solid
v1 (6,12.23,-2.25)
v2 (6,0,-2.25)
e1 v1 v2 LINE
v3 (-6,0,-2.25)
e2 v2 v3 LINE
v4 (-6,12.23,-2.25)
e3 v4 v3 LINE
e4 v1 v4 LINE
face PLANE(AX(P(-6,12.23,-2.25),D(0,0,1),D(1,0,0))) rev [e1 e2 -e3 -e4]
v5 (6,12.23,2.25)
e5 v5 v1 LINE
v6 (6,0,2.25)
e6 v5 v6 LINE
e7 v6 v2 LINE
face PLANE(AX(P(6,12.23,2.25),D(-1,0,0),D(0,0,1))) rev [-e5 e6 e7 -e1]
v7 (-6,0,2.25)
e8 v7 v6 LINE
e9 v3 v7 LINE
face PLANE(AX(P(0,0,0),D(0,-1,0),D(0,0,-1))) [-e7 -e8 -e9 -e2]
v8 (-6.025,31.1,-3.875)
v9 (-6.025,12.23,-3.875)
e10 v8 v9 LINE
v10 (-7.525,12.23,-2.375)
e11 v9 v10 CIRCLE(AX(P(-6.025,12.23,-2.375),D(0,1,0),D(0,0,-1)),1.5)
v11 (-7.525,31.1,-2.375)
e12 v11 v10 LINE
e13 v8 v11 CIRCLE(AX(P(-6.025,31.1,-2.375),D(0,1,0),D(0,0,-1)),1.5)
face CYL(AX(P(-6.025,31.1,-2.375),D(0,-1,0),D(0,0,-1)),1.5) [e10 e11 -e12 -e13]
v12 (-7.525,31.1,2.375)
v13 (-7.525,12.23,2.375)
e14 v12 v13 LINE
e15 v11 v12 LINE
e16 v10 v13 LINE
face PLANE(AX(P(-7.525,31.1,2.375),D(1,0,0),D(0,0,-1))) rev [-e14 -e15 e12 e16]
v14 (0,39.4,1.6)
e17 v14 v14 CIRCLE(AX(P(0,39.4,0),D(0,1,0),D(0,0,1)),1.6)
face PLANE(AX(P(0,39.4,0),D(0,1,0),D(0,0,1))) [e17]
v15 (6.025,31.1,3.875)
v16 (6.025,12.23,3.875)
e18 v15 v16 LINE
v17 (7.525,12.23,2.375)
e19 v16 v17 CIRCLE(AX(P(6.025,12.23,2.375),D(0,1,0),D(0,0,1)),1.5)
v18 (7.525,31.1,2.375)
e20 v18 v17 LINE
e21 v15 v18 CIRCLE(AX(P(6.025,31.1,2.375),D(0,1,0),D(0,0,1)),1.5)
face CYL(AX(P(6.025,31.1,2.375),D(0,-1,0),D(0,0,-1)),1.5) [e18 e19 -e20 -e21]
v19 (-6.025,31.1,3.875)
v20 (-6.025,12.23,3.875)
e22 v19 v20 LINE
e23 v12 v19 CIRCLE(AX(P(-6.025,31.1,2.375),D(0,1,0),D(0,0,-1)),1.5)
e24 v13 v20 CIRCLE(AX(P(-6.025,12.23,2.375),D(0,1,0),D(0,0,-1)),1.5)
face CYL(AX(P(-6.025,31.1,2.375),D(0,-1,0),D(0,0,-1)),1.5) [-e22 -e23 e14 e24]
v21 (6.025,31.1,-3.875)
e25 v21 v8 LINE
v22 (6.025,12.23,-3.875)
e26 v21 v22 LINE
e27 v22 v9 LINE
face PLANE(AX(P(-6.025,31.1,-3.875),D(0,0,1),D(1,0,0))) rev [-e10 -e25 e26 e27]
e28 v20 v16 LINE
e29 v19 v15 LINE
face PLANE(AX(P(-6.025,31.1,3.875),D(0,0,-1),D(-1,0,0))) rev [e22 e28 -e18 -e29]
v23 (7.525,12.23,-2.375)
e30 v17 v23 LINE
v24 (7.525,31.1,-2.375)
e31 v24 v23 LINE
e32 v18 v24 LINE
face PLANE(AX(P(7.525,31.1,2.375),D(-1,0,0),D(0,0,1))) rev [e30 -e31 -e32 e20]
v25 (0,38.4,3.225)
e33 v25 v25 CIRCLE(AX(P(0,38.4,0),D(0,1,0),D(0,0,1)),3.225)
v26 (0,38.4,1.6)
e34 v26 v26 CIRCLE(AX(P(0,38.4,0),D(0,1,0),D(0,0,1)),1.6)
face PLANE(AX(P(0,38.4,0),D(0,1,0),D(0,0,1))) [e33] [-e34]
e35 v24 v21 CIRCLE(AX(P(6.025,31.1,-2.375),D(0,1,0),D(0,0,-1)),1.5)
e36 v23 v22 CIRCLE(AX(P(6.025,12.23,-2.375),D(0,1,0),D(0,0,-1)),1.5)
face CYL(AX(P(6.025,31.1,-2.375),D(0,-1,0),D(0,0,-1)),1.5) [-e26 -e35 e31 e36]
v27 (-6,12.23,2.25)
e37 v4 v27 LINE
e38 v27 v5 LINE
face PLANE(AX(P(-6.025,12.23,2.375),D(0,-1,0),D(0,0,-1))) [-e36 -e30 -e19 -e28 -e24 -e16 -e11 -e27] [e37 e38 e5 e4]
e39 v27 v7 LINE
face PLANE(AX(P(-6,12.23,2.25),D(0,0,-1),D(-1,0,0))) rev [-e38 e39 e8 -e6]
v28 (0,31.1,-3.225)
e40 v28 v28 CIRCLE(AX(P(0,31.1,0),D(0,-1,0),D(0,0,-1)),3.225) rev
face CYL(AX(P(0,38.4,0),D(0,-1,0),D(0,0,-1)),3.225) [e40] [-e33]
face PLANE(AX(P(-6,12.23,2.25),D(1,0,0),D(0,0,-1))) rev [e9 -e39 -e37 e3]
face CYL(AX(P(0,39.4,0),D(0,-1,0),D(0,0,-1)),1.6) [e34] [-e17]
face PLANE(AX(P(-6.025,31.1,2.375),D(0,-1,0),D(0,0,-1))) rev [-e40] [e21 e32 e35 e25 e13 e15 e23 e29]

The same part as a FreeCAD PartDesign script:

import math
import FreeCAD as App
import Part
import Sketcher
Q = App.Units.Quantity

doc = App.newDocument("Part")
params = doc.addObject("Spreadsheet::Sheet", "Params")
for row, (alias, value) in enumerate([
    ("sketch1_width", "12 mm"),
    ("sketch1_height", "4.5 mm"),
    ("pad1_length", "12.23 mm"),
    ("sketch2_radius", "1.5 mm"),
    ("sketch2_width", "12.05 mm"),
    ("sketch2_height", "4.75 mm"),
    ("pad2_length", "18.87 mm"),
    ("sketch3_diameter", "6.45 mm"),
    ("pad3_length", "7.3 mm"),
    ("sketch4_diameter", "3.2 mm"),
    ("pad4_length", "1 mm"),
], start=1):
    params.set(f"A{row}", alias)
    params.set(f"B{row}", "=" + value)
    params.setAlias(f"B{row}", alias)

body = doc.addObject("PartDesign::Body", "Body")

sketch1 = doc.addObject("Sketcher::SketchObject", "Sketch")
body.addObject(sketch1)
sketch1.AttachmentSupport = (doc.XZ_Plane, [""])
sketch1.MapMode = "FlatFace"
sketch1.addGeometry([
    Part.LineSegment(App.Vector(-6, -2.25, 0), App.Vector(-6, 2.25, 0)),
    Part.LineSegment(App.Vector(-6, 2.25, 0), App.Vector(6, 2.25, 0)),
    Part.LineSegment(App.Vector(6, 2.25, 0), App.Vector(6, -2.25, 0)),
    Part.LineSegment(App.Vector(6, -2.25, 0), App.Vector(-6, -2.25, 0)),
], False)
sketch1.addConstraint([
    Sketcher.Constraint("Coincident", 0, 2, 1, 1),
    Sketcher.Constraint("Coincident", 1, 2, 2, 1),
    Sketcher.Constraint("Coincident", 2, 2, 3, 1),
    Sketcher.Constraint("Coincident", 3, 2, 0, 1),
    Sketcher.Constraint("Vertical", 0),
    Sketcher.Constraint("Horizontal", 1),
    Sketcher.Constraint("Vertical", 2),
    Sketcher.Constraint("Horizontal", 3),
    Sketcher.Constraint("Symmetric", 0, 2, 2, 2, -1, 1),
    Sketcher.Constraint("DistanceX", 1, 1, 1, 2, Q("12 mm")),
    Sketcher.Constraint("DistanceY", 0, 1, 0, 2, Q("4.5 mm")),
])
sketch1.setExpression("Constraints[9]", "Params.sketch1_width")
sketch1.setExpression("Constraints[10]", "Params.sketch1_height")
pad1 = doc.addObject("PartDesign::Pad", "Pad")
body.addObject(pad1)
pad1.Profile = sketch1
pad1.setExpression("Length", "Params.pad1_length")
pad1.Reversed = True

sketch2 = doc.addObject("Sketcher::SketchObject", "Sketch001")
body.addObject(sketch2)
sketch2.AttachmentSupport = (doc.XZ_Plane, [""])
sketch2.MapMode = "FlatFace"
sketch2.AttachmentOffset = App.Placement(App.Vector(0, 0, -12.23), App.Rotation())
sketch2.addGeometry([
    Part.LineSegment(App.Vector(-6.025, 3.875, 0), App.Vector(6.025, 3.875, 0)),
    Part.ArcOfCircle(Part.Circle(App.Vector(6.025, 2.375, 0), App.Vector(0, 0, 1), 1.5), math.radians(0), math.radians(90)),
    Part.LineSegment(App.Vector(7.525, 2.375, 0), App.Vector(7.525, -2.375, 0)),
    Part.ArcOfCircle(Part.Circle(App.Vector(6.025, -2.375, 0), App.Vector(0, 0, 1), 1.5), math.radians(-90), math.radians(0)),
    Part.LineSegment(App.Vector(6.025, -3.875, 0), App.Vector(-6.025, -3.875, 0)),
    Part.ArcOfCircle(Part.Circle(App.Vector(-6.025, -2.375, 0), App.Vector(0, 0, 1), 1.5), math.radians(180), math.radians(270)),
    Part.LineSegment(App.Vector(-7.525, -2.375, 0), App.Vector(-7.525, 2.375, 0)),
    Part.ArcOfCircle(Part.Circle(App.Vector(-6.025, 2.375, 0), App.Vector(0, 0, 1), 1.5), math.radians(90), math.radians(180)),
], False)
sketch2.addConstraint([
    Sketcher.Constraint("Tangent", 0, 2, 1, 2),
    Sketcher.Constraint("Tangent", 1, 1, 2, 1),
    Sketcher.Constraint("Tangent", 2, 2, 3, 2),
    Sketcher.Constraint("Tangent", 3, 1, 4, 1),
    Sketcher.Constraint("Tangent", 4, 2, 5, 2),
    Sketcher.Constraint("Tangent", 5, 1, 6, 1),
    Sketcher.Constraint("Tangent", 6, 2, 7, 2),
    Sketcher.Constraint("Tangent", 7, 1, 0, 1),
    Sketcher.Constraint("Horizontal", 0),
    Sketcher.Constraint("Vertical", 2),
    Sketcher.Constraint("Horizontal", 4),
    Sketcher.Constraint("Vertical", 6),
    Sketcher.Constraint("Equal", 1, 3),
    Sketcher.Constraint("Equal", 3, 5),
    Sketcher.Constraint("Equal", 5, 7),
    Sketcher.Constraint("Symmetric", 1, 3, 5, 3, -1, 1),
    Sketcher.Constraint("Radius", 1, Q("1.5 mm")),
    Sketcher.Constraint("DistanceX", 0, 1, 0, 2, Q("12.05 mm")),
    Sketcher.Constraint("DistanceY", 2, 2, 2, 1, Q("4.75 mm")),
])
sketch2.setExpression("Constraints[16]", "Params.sketch2_radius")
sketch2.setExpression("Constraints[17]", "Params.sketch2_width")
sketch2.setExpression("Constraints[18]", "Params.sketch2_height")
pad2 = doc.addObject("PartDesign::Pad", "Pad001")
body.addObject(pad2)
pad2.Profile = sketch2
pad2.setExpression("Length", "Params.pad2_length")
pad2.Reversed = True

sketch3 = doc.addObject("Sketcher::SketchObject", "Sketch002")
body.addObject(sketch3)
sketch3.AttachmentSupport = (doc.XZ_Plane, [""])
sketch3.MapMode = "FlatFace"
sketch3.AttachmentOffset = App.Placement(App.Vector(0, 0, -31.1), App.Rotation())
sketch3.addGeometry(Part.Circle(App.Vector(0, 0, 0), App.Vector(0, 0, 1), 3.225), False)
sketch3.addConstraint([
    Sketcher.Constraint("Coincident", 0, 3, -1, 1),
    Sketcher.Constraint("Diameter", 0, Q("6.45 mm")),
])
sketch3.setExpression("Constraints[1]", "Params.sketch3_diameter")
pad3 = doc.addObject("PartDesign::Pad", "Pad002")
body.addObject(pad3)
pad3.Profile = sketch3
pad3.setExpression("Length", "Params.pad3_length")
pad3.Reversed = True

sketch4 = doc.addObject("Sketcher::SketchObject", "Sketch003")
body.addObject(sketch4)
sketch4.AttachmentSupport = (doc.XZ_Plane, [""])
sketch4.MapMode = "FlatFace"
sketch4.AttachmentOffset = App.Placement(App.Vector(0, 0, -38.4), App.Rotation())
sketch4.addGeometry(Part.Circle(App.Vector(0, 0, 0), App.Vector(0, 0, 1), 1.6), False)
sketch4.addConstraint([
    Sketcher.Constraint("Coincident", 0, 3, -1, 1),
    Sketcher.Constraint("Diameter", 0, Q("3.2 mm")),
])
sketch4.setExpression("Constraints[1]", "Params.sketch4_diameter")
pad4 = doc.addObject("PartDesign::Pad", "Pad003")
body.addObject(pad4)
pad4.Profile = sketch4
pad4.setExpression("Length", "Params.pad4_length")
pad4.Reversed = True

doc.recompute()
